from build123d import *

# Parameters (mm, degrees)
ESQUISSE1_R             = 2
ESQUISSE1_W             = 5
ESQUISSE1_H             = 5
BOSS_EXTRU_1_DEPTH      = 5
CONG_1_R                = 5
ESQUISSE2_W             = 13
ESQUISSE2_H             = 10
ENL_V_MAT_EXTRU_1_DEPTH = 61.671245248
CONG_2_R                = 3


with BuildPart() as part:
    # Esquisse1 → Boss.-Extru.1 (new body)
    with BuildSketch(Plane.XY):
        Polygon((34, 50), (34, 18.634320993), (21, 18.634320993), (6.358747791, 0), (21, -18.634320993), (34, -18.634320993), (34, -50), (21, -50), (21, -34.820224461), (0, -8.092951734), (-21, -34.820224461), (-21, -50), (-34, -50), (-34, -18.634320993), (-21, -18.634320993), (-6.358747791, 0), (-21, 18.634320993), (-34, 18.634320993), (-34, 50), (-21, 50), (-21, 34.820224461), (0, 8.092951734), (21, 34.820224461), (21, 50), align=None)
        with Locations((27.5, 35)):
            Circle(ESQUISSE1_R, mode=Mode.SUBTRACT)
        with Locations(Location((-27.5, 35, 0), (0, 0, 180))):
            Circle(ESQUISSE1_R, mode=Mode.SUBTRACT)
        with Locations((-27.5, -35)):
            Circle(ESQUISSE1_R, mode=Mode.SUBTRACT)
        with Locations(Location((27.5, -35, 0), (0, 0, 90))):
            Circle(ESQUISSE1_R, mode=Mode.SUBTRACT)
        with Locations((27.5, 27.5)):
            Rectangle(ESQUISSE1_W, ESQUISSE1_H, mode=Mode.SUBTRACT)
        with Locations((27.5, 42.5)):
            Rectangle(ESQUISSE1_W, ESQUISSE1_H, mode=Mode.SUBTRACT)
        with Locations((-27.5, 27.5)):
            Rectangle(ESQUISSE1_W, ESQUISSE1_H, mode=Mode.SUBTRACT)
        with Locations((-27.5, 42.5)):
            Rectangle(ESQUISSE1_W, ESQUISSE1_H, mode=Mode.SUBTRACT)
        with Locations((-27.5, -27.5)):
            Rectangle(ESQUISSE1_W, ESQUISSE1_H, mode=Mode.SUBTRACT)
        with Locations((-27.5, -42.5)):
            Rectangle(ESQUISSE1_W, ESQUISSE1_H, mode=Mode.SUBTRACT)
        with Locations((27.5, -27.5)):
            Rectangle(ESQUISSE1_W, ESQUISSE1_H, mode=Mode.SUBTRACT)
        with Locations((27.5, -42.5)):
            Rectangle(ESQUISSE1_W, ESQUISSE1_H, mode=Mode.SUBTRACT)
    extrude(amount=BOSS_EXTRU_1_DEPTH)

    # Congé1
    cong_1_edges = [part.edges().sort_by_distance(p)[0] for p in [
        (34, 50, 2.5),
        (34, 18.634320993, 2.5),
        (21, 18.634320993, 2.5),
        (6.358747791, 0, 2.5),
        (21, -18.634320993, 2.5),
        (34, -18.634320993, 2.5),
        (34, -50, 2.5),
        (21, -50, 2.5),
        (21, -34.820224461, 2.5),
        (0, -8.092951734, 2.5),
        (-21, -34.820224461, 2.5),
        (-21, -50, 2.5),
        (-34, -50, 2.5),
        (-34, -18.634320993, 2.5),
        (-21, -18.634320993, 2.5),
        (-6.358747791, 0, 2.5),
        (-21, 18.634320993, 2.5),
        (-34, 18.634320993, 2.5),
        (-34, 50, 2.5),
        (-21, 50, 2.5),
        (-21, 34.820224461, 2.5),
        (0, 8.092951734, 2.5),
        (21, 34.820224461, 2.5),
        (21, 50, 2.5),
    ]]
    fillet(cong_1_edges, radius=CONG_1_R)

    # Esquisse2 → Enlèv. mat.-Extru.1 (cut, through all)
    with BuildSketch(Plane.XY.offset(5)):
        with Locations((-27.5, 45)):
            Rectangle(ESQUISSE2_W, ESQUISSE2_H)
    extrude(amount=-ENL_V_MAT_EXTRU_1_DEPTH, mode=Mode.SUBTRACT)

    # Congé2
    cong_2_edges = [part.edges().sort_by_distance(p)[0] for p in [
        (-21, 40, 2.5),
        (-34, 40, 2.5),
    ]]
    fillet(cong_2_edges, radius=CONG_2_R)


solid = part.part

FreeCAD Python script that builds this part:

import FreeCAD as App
import Part
import Sketcher
from FreeCAD import Vector


def edges_at(feature, points):
    """Names of the edges that pass closest to the given points."""
    edges = feature.Shape.Edges
    near = lambda p: min(range(len(edges)), key=lambda i: edges[i].distToShape(Part.Vertex(*p))[0])
    return sorted({f"Edge{near(p) + 1}" for p in points})


def add_polygon(sketch, points):
    """Adds a closed chain of lines whose ends are joined by coincident constraints."""
    first, n = sketch.GeometryCount, len(points)
    for a, b in zip(points, points[1:] + points[:1]):
        sketch.addGeometry(Part.LineSegment(App.Vector(*a, 0), App.Vector(*b, 0)), False)
    for i in range(n):
        sketch.addConstraint(Sketcher.Constraint("Coincident", first + i, 2, first + (i + 1) % n, 1))

doc = App.newDocument("Part")
body = doc.addObject("PartDesign::Body", "Body")

# Sketch on XY plane
sketch1 = body.newObject("Sketcher::SketchObject", "Sketch")
sketch1.AttachmentSupport = (doc.getObject("XY_Plane"), [""])
sketch1.MapMode = "FlatFace"
add_polygon(sketch1, [(34, 18.6), (34, 50), (21, 50), (21, 34.8), (0, 8.1), (-21, 34.8), (-21, 50), (-34, 50), (-34, 18.6), (-21, 18.6), (-6.4, 0), (-21, -18.6), (-34, -18.6), (-34, -50), (-21, -50), (-21, -34.8), (0, -8.1), (21, -34.8), (21, -50), (34, -50), (34, -18.6), (21, -18.6), (6.4, 0), (21, 18.6)])  # lines 0-23
add_polygon(sketch1, [(25, -45), (25, -40), (30, -40), (30, -45)])  # lines 24-27
sketch1.addGeometry(Part.Circle(Vector(27.5, -35, 0), Vector(0, 0, 1), 2), False)  # 28
add_polygon(sketch1, [(25, -30), (25, -25), (30, -25), (30, -30)])  # lines 29-32
add_polygon(sketch1, [(-30, -45), (-30, -40), (-25, -40), (-25, -45)])  # lines 33-36
sketch1.addGeometry(Part.Circle(Vector(-27.5, -35, 0), Vector(0, 0, 1), 2), False)  # 37
add_polygon(sketch1, [(-30, -30), (-30, -25), (-25, -25), (-25, -30)])  # lines 38-41
add_polygon(sketch1, [(25, 25), (25, 30), (30, 30), (30, 25)])  # lines 42-45
sketch1.addGeometry(Part.Circle(Vector(27.5, 35, 0), Vector(0, 0, 1), 2), False)  # 46
add_polygon(sketch1, [(25, 40), (25, 45), (30, 45), (30, 40)])  # lines 47-50
add_polygon(sketch1, [(-30, 25), (-30, 30), (-25, 30), (-25, 25)])  # lines 51-54
sketch1.addGeometry(Part.Circle(Vector(-27.5, 35, 0), Vector(0, 0, 1), 2), False)  # 55
add_polygon(sketch1, [(-30, 40), (-30, 45), (-25, 45), (-25, 40)])  # lines 56-59
sketch1.addConstraint([
    Sketcher.Constraint("Vertical", 0),
    Sketcher.Constraint("Horizontal", 1),
    Sketcher.Constraint("Vertical", 2),
    Sketcher.Constraint("Vertical", 5),
    Sketcher.Constraint("Horizontal", 6),
    Sketcher.Constraint("Vertical", 7),
    Sketcher.Constraint("Horizontal", 8),
    Sketcher.Constraint("Horizontal", 11),
    Sketcher.Constraint("Vertical", 12),
    Sketcher.Constraint("Horizontal", 13),
    Sketcher.Constraint("Vertical", 14),
    Sketcher.Constraint("Vertical", 17),
    Sketcher.Constraint("Horizontal", 18),
    Sketcher.Constraint("Vertical", 19),
    Sketcher.Constraint("Horizontal", 20),
    Sketcher.Constraint("Horizontal", 23),
    Sketcher.Constraint("Vertical", 24),
    Sketcher.Constraint("Horizontal", 25),
    Sketcher.Constraint("Vertical", 26),
    Sketcher.Constraint("Horizontal", 27),
    Sketcher.Constraint("Vertical", 29),
    Sketcher.Constraint("Horizontal", 30),
    Sketcher.Constraint("Vertical", 31),
    Sketcher.Constraint("Horizontal", 32),
    Sketcher.Constraint("Vertical", 33),
    Sketcher.Constraint("Horizontal", 34),
    Sketcher.Constraint("Vertical", 35),
    Sketcher.Constraint("Horizontal", 36),
    Sketcher.Constraint("Vertical", 38),
    Sketcher.Constraint("Horizontal", 39),
    Sketcher.Constraint("Vertical", 40),
    Sketcher.Constraint("Horizontal", 41),
    Sketcher.Constraint("Vertical", 42),
    Sketcher.Constraint("Horizontal", 43),
    Sketcher.Constraint("Vertical", 44),
    Sketcher.Constraint("Horizontal", 45),
    Sketcher.Constraint("Vertical", 47),
    Sketcher.Constraint("Horizontal", 48),
    Sketcher.Constraint("Vertical", 49),
    Sketcher.Constraint("Horizontal", 50),
    Sketcher.Constraint("Vertical", 51),
    Sketcher.Constraint("Horizontal", 52),
    Sketcher.Constraint("Vertical", 53),
    Sketcher.Constraint("Horizontal", 54),
    Sketcher.Constraint("Vertical", 56),
    Sketcher.Constraint("Horizontal", 57),
    Sketcher.Constraint("Vertical", 58),
    Sketcher.Constraint("Horizontal", 59),
    Sketcher.Constraint("Equal", 28, 37),
    Sketcher.Constraint("Equal", 37, 46),
    Sketcher.Constraint("Equal", 46, 55),
    Sketcher.Constraint("Symmetric", 37, 3, 46, 3, -1, 1),
    Sketcher.Constraint("Symmetric", 28, 3, 55, 3, -1, 1),
    Sketcher.Constraint("Symmetric", 0, 2, 12, 2, -1, 1),
    Sketcher.Constraint("Symmetric", 2, 2, 14, 2, -1, 1),
    Sketcher.Constraint("Symmetric", 3, 2, 15, 2, -1, 1),
    Sketcher.Constraint("Symmetric", 4, 2, 16, 2, -1, 1),
    Sketcher.Constraint("Symmetric", 6, 2, 18, 2, -1, 1),
    Sketcher.Constraint("Symmetric", 8, 2, 20, 2, -1, 1),
    Sketcher.Constraint("Symmetric", 9, 2, 21, 2, -1, 1),
    Sketcher.Constraint("Symmetric", 10, 2, 22, 2, -1, 1),
    Sketcher.Constraint("Symmetric", 40, 2, 42, 2, -1, 1),
    Sketcher.Constraint("Symmetric", 38, 2, 44, 2, -1, 1),
    Sketcher.Constraint("Symmetric", 35, 2, 47, 2, -1, 1),
    Sketcher.Constraint("Symmetric", 33, 2, 49, 2, -1, 1),
    Sketcher.Constraint("Symmetric", 31, 2, 51, 2, -1, 1),
    Sketcher.Constraint("Symmetric", 29, 2, 53, 2, -1, 1),
    Sketcher.Constraint("Symmetric", 26, 2, 56, 2, -1, 1),
    Sketcher.Constraint("Symmetric", 24, 2, 58, 2, -1, 1),
    Sketcher.Constraint("Symmetric", 28, 3, 37, 3, -2),
    Sketcher.Constraint("Symmetric", 2, 2, 4, 2, -2),
    Sketcher.Constraint("Symmetric", 0, 2, 6, 2, -2),
    Sketcher.Constraint("Symmetric", 10, 2, 20, 2, -2),
    Sketcher.Constraint("Symmetric", 25, 2, 33, 2, -2),
    Sketcher.Constraint("Symmetric", 27, 2, 35, 2, -2),
    Sketcher.Constraint("Symmetric", 30, 2, 38, 2, -2),
    Sketcher.Constraint("Symmetric", 32, 2, 40, 2, -2),
    Sketcher.Constraint("PointOnObject", 3, 2, -2),
    Sketcher.Constraint("PointOnObject", 9, 2, -1),
    Sketcher.Constraint("Parallel", 4, 9),
    Sketcher.Constraint("Vertical", 5, 2, 8, 2),
    Sketcher.Constraint("Vertical", 27, 2, 29, 2),
    Sketcher.Constraint("Vertical", 26, 2, 30, 2),
    Sketcher.Constraint("Equal", 59, 24),
    Sketcher.Constraint("Equal", 26, 29),
    Sketcher.Constraint("Diameter", 28, 4.0),
    Sketcher.Constraint("DistanceX", 1, 2, 1, 1, 13.0),
    Sketcher.Constraint("DistanceX", 25, 1, 25, 2, 5.0),
    Sketcher.Constraint("DistanceY", 28, 3, -1, 1, 35.0),
    Sketcher.Constraint("DistanceX", -1, 1, 0, 2, 34.0),
    Sketcher.Constraint("DistanceY", -1, 1, 0, 2, 50.0),
    Sketcher.Constraint("DistanceX", -1, 1, 24, 2, 25.0),
    Sketcher.Constraint("DistanceY", 24, 2, -1, 1, 40.0),
    Sketcher.Constraint("DistanceY", 29, 2, -1, 1, 25.0),
    Sketcher.Constraint("DistanceX", 37, 3, 28, 3, 55.0),
    Sketcher.Constraint("DistanceY", 0, 1, 0, 2, 31.365679),
    Sketcher.Constraint("Distance", 9, 23.698189),
    Sketcher.Constraint("DistanceY", 2, 2, 2, 1, 15.179776),
])
pad1 = body.newObject("PartDesign::Pad", "Pad")
pad1.Profile = sketch1
pad1.Length = 5
doc.recompute()

fillet = body.newObject("PartDesign::Fillet", "Fillet")
fillet.Base = (pad1, edges_at(pad1, [
    (34, 50, 2.5),
    (34, 18.634, 2.5),
    (21, 18.634, 2.5),
    (6.359, 0, 2.5),
    (21, -18.634, 2.5),
    (34, -18.634, 2.5),
    (34, -50, 2.5),
    (21, -50, 2.5),
    (21, -34.82, 2.5),
    (0, -8.093, 2.5),
    (-21, -34.82, 2.5),
    (-21, -50, 2.5),
    (-34, -50, 2.5),
    (-34, -18.634, 2.5),
    (-21, -18.634, 2.5),
    (-6.359, 0, 2.5),
    (-21, 18.634, 2.5),
    (-34, 18.634, 2.5),
    (-34, 50, 2.5),
    (-21, 50, 2.5),
    (-21, 34.82, 2.5),
    (0, 8.093, 2.5),
    (21, 34.82, 2.5),
    (21, 50, 2.5),
]))
fillet.Radius = 5

# Sketch on XY plane
sketch2 = body.newObject("Sketcher::SketchObject", "Sketch001")
sketch2.AttachmentSupport = (doc.getObject("XY_Plane"), [""])
sketch2.MapMode = "FlatFace"
sketch2.AttachmentOffset = App.Placement(Vector(0, 0, 5), App.Rotation())
add_polygon(sketch2, [(-34, 50), (-34, 40), (-21, 40), (-21, 50)])  # lines 0-3
sketch2.addConstraint([
    Sketcher.Constraint("Vertical", 0),
    Sketcher.Constraint("Horizontal", 1),
    Sketcher.Constraint("Vertical", 2),
    Sketcher.Constraint("Horizontal", 3),
    Sketcher.Constraint("DistanceX", 1, 1, 1, 2, 13.0),
    Sketcher.Constraint("DistanceY", 0, 2, 0, 1, 10.0),
    Sketcher.Constraint("DistanceX", 0, 2, -1, 1, 34.0),
    Sketcher.Constraint("DistanceY", -1, 1, 0, 2, 40.0),
])
pocket1 = body.newObject("PartDesign::Pocket", "Pocket")
pocket1.Profile = sketch2
pocket1.Type = "ThroughAll"
doc.recompute()

fillet2 = body.newObject("PartDesign::Fillet", "Fillet001")
fillet2.Base = (pocket1, edges_at(pocket1, [(-21, 40, 2.5), (-34, 40, 2.5)]))
fillet2.Radius = 3

doc.recompute()
